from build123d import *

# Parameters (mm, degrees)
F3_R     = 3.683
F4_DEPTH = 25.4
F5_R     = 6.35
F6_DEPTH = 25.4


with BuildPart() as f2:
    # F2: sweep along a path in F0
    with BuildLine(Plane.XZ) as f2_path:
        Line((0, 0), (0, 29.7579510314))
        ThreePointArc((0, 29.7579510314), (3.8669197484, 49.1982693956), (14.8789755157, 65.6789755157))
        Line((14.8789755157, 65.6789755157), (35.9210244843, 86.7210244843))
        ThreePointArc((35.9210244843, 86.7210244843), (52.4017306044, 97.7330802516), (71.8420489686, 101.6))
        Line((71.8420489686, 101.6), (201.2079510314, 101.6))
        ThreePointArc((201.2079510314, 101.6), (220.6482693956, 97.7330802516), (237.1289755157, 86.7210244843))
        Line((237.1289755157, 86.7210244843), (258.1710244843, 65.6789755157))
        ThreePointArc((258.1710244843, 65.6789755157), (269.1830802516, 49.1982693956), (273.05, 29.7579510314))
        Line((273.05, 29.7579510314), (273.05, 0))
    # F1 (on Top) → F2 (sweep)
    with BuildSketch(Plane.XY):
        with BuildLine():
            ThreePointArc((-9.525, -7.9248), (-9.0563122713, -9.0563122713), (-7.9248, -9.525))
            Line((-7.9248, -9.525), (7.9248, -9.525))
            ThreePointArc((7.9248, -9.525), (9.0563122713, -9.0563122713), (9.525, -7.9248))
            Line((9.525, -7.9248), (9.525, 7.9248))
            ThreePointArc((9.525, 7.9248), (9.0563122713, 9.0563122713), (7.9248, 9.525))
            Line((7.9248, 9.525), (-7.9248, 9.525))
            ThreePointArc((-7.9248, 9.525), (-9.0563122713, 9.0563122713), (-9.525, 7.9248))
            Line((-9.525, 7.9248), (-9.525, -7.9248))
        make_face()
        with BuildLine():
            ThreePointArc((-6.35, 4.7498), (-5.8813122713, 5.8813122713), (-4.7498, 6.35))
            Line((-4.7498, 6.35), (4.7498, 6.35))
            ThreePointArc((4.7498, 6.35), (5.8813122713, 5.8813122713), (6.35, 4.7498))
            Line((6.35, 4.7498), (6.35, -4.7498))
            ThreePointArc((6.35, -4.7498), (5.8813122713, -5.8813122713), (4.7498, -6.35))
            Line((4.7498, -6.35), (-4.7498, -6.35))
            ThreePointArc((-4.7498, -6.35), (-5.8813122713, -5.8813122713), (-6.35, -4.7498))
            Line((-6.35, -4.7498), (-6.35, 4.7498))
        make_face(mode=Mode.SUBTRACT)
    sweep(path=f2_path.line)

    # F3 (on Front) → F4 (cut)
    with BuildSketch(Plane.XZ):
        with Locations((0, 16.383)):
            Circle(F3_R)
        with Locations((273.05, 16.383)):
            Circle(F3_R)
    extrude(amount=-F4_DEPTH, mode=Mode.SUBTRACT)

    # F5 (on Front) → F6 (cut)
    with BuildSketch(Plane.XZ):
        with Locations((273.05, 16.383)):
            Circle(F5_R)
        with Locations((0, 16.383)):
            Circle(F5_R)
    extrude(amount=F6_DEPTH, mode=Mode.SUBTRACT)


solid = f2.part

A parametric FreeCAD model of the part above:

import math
import FreeCAD as App
import Part
import Sketcher

V = App.Vector
Q = App.Units.Quantity

doc = App.newDocument("Part")
params = doc.addObject("Spreadsheet::Sheet", "Params")
for row, (alias, value) in enumerate([
    ("sketch1_radius", "0.063 in"),
    ("sketch1_width", "0.624 in"),
    ("sketch1_width2", "0.374 in"),
    ("sketch2_radius", "2 in"),
    ("sketch3_diameter", "0.29 in"),
    ("pocket1_length", "1 in"),
    ("sketch4_diameter", "0.5 in"),
    ("pocket2_length", "1 in"),
], start=1):
    params.set(f"A{row}", alias)
    params.set(f"B{row}", "=" + value)
    params.setAlias(f"B{row}", alias)

body = doc.addObject("PartDesign::Body", "Body")

# Sketch on XY plane
sketch1 = doc.addObject("Sketcher::SketchObject", "Sketch")
body.addObject(sketch1)
sketch1.AttachmentSupport = (doc.XY_Plane, [""])
sketch1.MapMode = "FlatFace"
sketch1.addGeometry(Part.ArcOfCircle(Part.Circle(V(-7.9, -7.9, 0), V(0, 0, 1), 1.6), math.radians(180), math.radians(270)), False)
sketch1.addGeometry(Part.LineSegment(V(-7.9, -9.5, 0), V(7.9, -9.5, 0)), False)
sketch1.addGeometry(Part.ArcOfCircle(Part.Circle(V(7.9, -7.9, 0), V(0, 0, 1), 1.6), math.radians(-90), math.radians(0)), False)
sketch1.addGeometry(Part.LineSegment(V(9.5, -7.9, 0), V(9.5, 7.9, 0)), False)
sketch1.addGeometry(Part.ArcOfCircle(Part.Circle(V(7.9, 7.9, 0), V(0, 0, 1), 1.6), math.radians(0), math.radians(90)), False)
sketch1.addGeometry(Part.LineSegment(V(7.9, 9.5, 0), V(-7.9, 9.5, 0)), False)
sketch1.addGeometry(Part.ArcOfCircle(Part.Circle(V(-7.9, 7.9, 0), V(0, 0, 1), 1.6), math.radians(90), math.radians(180)), False)
sketch1.addGeometry(Part.LineSegment(V(-9.5, 7.9, 0), V(-9.5, -7.9, 0)), False)
sketch1.addGeometry(Part.LineSegment(V(-6.3, -4.7, 0), V(-6.3, 4.7, 0)), False)
sketch1.addGeometry(Part.ArcOfCircle(Part.Circle(V(-4.7, 4.7, 0), V(0, 0, 1), 1.6), math.radians(90), math.radians(180)), False)
sketch1.addGeometry(Part.LineSegment(V(-4.7, 6.3, 0), V(4.7, 6.3, 0)), False)
sketch1.addGeometry(Part.ArcOfCircle(Part.Circle(V(4.7, 4.7, 0), V(0, 0, 1), 1.6), math.radians(0), math.radians(90)), False)
sketch1.addGeometry(Part.LineSegment(V(6.3, 4.7, 0), V(6.3, -4.7, 0)), False)
sketch1.addGeometry(Part.ArcOfCircle(Part.Circle(V(4.7, -4.7, 0), V(0, 0, 1), 1.6), math.radians(-90), math.radians(0)), False)
sketch1.addGeometry(Part.LineSegment(V(4.7, -6.3, 0), V(-4.7, -6.3, 0)), False)
sketch1.addGeometry(Part.ArcOfCircle(Part.Circle(V(-4.7, -4.7, 0), V(0, 0, 1), 1.6), math.radians(180), math.radians(270)), False)
sketch1.addConstraint(Sketcher.Constraint("Tangent", 0, 2, 1, 1))
sketch1.addConstraint(Sketcher.Constraint("Tangent", 1, 2, 2, 1))
sketch1.addConstraint(Sketcher.Constraint("Tangent", 2, 2, 3, 1))
sketch1.addConstraint(Sketcher.Constraint("Tangent", 3, 2, 4, 1))
sketch1.addConstraint(Sketcher.Constraint("Tangent", 4, 2, 5, 1))
sketch1.addConstraint(Sketcher.Constraint("Tangent", 5, 2, 6, 1))
sketch1.addConstraint(Sketcher.Constraint("Tangent", 6, 2, 7, 1))
sketch1.addConstraint(Sketcher.Constraint("Tangent", 7, 2, 0, 1))
sketch1.addConstraint(Sketcher.Constraint("Tangent", 8, 2, 9, 2))
sketch1.addConstraint(Sketcher.Constraint("Tangent", 9, 1, 10, 1))
sketch1.addConstraint(Sketcher.Constraint("Tangent", 10, 2, 11, 2))
sketch1.addConstraint(Sketcher.Constraint("Tangent", 11, 1, 12, 1))
sketch1.addConstraint(Sketcher.Constraint("Tangent", 12, 2, 13, 2))
sketch1.addConstraint(Sketcher.Constraint("Tangent", 13, 1, 14, 1))
sketch1.addConstraint(Sketcher.Constraint("Tangent", 14, 2, 15, 2))
sketch1.addConstraint(Sketcher.Constraint("Tangent", 15, 1, 8, 1))
sketch1.addConstraint(Sketcher.Constraint("Horizontal", 1))
sketch1.addConstraint(Sketcher.Constraint("Vertical", 3))
sketch1.addConstraint(Sketcher.Constraint("Horizontal", 5))
sketch1.addConstraint(Sketcher.Constraint("Vertical", 7))
sketch1.addConstraint(Sketcher.Constraint("Vertical", 8))
sketch1.addConstraint(Sketcher.Constraint("Horizontal", 10))
sketch1.addConstraint(Sketcher.Constraint("Vertical", 12))
sketch1.addConstraint(Sketcher.Constraint("Horizontal", 14))
sketch1.addConstraint(Sketcher.Constraint("Equal", 0, 2))
sketch1.addConstraint(Sketcher.Constraint("Equal", 2, 4))
sketch1.addConstraint(Sketcher.Constraint("Equal", 4, 6))
sketch1.addConstraint(Sketcher.Constraint("Equal", 6, 9))
sketch1.addConstraint(Sketcher.Constraint("Equal", 9, 11))
sketch1.addConstraint(Sketcher.Constraint("Equal", 11, 13))
sketch1.addConstraint(Sketcher.Constraint("Equal", 13, 15))
sketch1.addConstraint(Sketcher.Constraint("Symmetric", 0, 3, 4, 3, -1, 1))
sketch1.addConstraint(Sketcher.Constraint("Symmetric", 9, 3, 13, 3, -1, 1))
sketch1.addConstraint(Sketcher.Constraint("Equal", 5, 3))
sketch1.addConstraint(Sketcher.Constraint("Equal", 14, 8))
sketch1.addConstraint(Sketcher.Constraint("Radius", 0, Q("0.063 in")))
sketch1.addConstraint(Sketcher.Constraint("DistanceX", 1, 1, 1, 2, Q("0.624 in")))
sketch1.addConstraint(Sketcher.Constraint("DistanceX", 10, 1, 10, 2, Q("0.374 in")))
sketch1.setExpression("Constraints[35]", "Params.sketch1_radius")
sketch1.setExpression("Constraints[36]", "Params.sketch1_width")
sketch1.setExpression("Constraints[37]", "Params.sketch1_width2")

# Sketch on XZ plane
sketch2 = doc.addObject("Sketcher::SketchObject", "Sketch001")
body.addObject(sketch2)
sketch2.AttachmentSupport = (doc.XZ_Plane, [""])
sketch2.MapMode = "FlatFace"
sketch2.addGeometry(Part.LineSegment(V(0, 0, 0), V(0, 30, 0)), False)
sketch2.addGeometry(Part.ArcOfCircle(Part.Circle(V(51, 30, 0), V(0, 0, 1), 51), math.radians(135), math.radians(180)), False)
sketch2.addGeometry(Part.LineSegment(V(15, 66, 0), V(36, 87, 0)), False)
sketch2.addGeometry(Part.ArcOfCircle(Part.Circle(V(72, 51, 0), V(0, 0, 1), 51), math.radians(90), math.radians(135)), False)
sketch2.addGeometry(Part.LineSegment(V(72, 102, 0), V(201, 102, 0)), False)
sketch2.addGeometry(Part.ArcOfCircle(Part.Circle(V(201, 51, 0), V(0, 0, 1), 51), math.radians(45), math.radians(90)), False)
sketch2.addGeometry(Part.LineSegment(V(237, 87, 0), V(258, 66, 0)), False)
sketch2.addGeometry(Part.ArcOfCircle(Part.Circle(V(222, 30, 0), V(0, 0, 1), 51), math.radians(0), math.radians(45)), False)
sketch2.addGeometry(Part.LineSegment(V(273, 30, 0), V(273, 0, 0)), False)
sketch2.addConstraint(Sketcher.Constraint("Tangent", 0, 2, 1, 2))
sketch2.addConstraint(Sketcher.Constraint("Tangent", 1, 1, 2, 1))
sketch2.addConstraint(Sketcher.Constraint("Tangent", 2, 2, 3, 2))
sketch2.addConstraint(Sketcher.Constraint("Tangent", 3, 1, 4, 1))
sketch2.addConstraint(Sketcher.Constraint("Tangent", 4, 2, 5, 2))
sketch2.addConstraint(Sketcher.Constraint("Tangent", 5, 1, 6, 1))
sketch2.addConstraint(Sketcher.Constraint("Tangent", 6, 2, 7, 2))
sketch2.addConstraint(Sketcher.Constraint("Tangent", 7, 1, 8, 1))
sketch2.addConstraint(Sketcher.Constraint("Vertical", 0))
sketch2.addConstraint(Sketcher.Constraint("Horizontal", 4))
sketch2.addConstraint(Sketcher.Constraint("Vertical", 8))
sketch2.addConstraint(Sketcher.Constraint("Coincident", 0, 1, -1, 1))
sketch2.addConstraint(Sketcher.Constraint("Equal", 1, 3))
sketch2.addConstraint(Sketcher.Constraint("Equal", 3, 5))
sketch2.addConstraint(Sketcher.Constraint("Equal", 5, 7))
sketch2.addConstraint(Sketcher.Constraint("PointOnObject", 8, 2, -1))
sketch2.addConstraint(Sketcher.Constraint("Perpendicular", 2, 6))
sketch2.addConstraint(Sketcher.Constraint("Horizontal", 1, 3, 7, 3))
sketch2.addConstraint(Sketcher.Constraint("Horizontal", 2, 2, 5, 1))
sketch2.addConstraint(Sketcher.Constraint("Radius", 1, Q("2 in")))
sketch2.addConstraint(Sketcher.Constraint("DistanceY", -1, 1, 3, 3, Q("2 in")))
sketch2.addConstraint(Sketcher.Constraint("DistanceX", -1, 1, 7, 3, Q("8.75 in")))
sketch2.addConstraint(Sketcher.Constraint("DistanceY", 0, 1, 0, 2, 29.757951))
sketch2.setExpression("Constraints[19]", "Params.sketch2_radius")
doc.recompute()

additivepipe = doc.addObject("PartDesign::AdditivePipe", "AdditivePipe")
body.addObject(additivepipe)
additivepipe.Profile = sketch1
additivepipe.Spine = (sketch2, ["Edge1", "Edge2", "Edge3", "Edge4", "Edge5", "Edge6", "Edge7", "Edge8", "Edge9"])

# Sketch on XZ plane
sketch3 = doc.addObject("Sketcher::SketchObject", "Sketch002")
body.addObject(sketch3)
sketch3.AttachmentSupport = (doc.XZ_Plane, [""])
sketch3.MapMode = "FlatFace"
sketch3.addGeometry(Part.Circle(V(0, 16.4, 0), V(0, 0, 1), 3.7), False)
sketch3.addGeometry(Part.Circle(V(273.1, 16.4, 0), V(0, 0, 1), 3.7), False)
sketch3.addConstraint(Sketcher.Constraint("Equal", 0, 1))
sketch3.addConstraint(Sketcher.Constraint("PointOnObject", 0, 3, -2))
sketch3.addConstraint(Sketcher.Constraint("Horizontal", 0, 3, 1, 3))
sketch3.addConstraint(Sketcher.Constraint("Diameter", 0, Q("0.29 in")))
sketch3.addConstraint(Sketcher.Constraint("DistanceX", -1, 1, 1, 3, Q("10.75 in")))
sketch3.addConstraint(Sketcher.Constraint("DistanceY", -1, 1, 0, 3, Q("0.645 in")))
sketch3.setExpression("Constraints[3]", "Params.sketch3_diameter")
pocket1 = doc.addObject("PartDesign::Pocket", "Pocket")
body.addObject(pocket1)
pocket1.Profile = sketch3
pocket1.setExpression("Length", "Params.pocket1_length")

# Sketch on XZ plane
sketch4 = doc.addObject("Sketcher::SketchObject", "Sketch003")
body.addObject(sketch4)
sketch4.AttachmentSupport = (doc.XZ_Plane, [""])
sketch4.MapMode = "FlatFace"
sketch4.addGeometry(Part.Circle(V(273, 16, 0), V(0, 0, 1), 6), False)
sketch4.addGeometry(Part.Circle(V(0, 16, 0), V(0, 0, 1), 6), False)
sketch4.addConstraint(Sketcher.Constraint("Equal", 0, 1))
sketch4.addConstraint(Sketcher.Constraint("PointOnObject", 1, 3, -2))
sketch4.addConstraint(Sketcher.Constraint("Horizontal", 0, 3, 1, 3))
sketch4.addConstraint(Sketcher.Constraint("Diameter", 0, Q("0.5 in")))
sketch4.addConstraint(Sketcher.Constraint("DistanceX", -1, 1, 0, 3, Q("10.75 in")))
sketch4.addConstraint(Sketcher.Constraint("DistanceY", -1, 1, 0, 3, Q("0.645 in")))
sketch4.setExpression("Constraints[3]", "Params.sketch4_diameter")
pocket2 = doc.addObject("PartDesign::Pocket", "Pocket001")
body.addObject(pocket2)
pocket2.Profile = sketch4
pocket2.setExpression("Length", "Params.pocket2_length")
pocket2.Reversed = True

doc.recompute()
